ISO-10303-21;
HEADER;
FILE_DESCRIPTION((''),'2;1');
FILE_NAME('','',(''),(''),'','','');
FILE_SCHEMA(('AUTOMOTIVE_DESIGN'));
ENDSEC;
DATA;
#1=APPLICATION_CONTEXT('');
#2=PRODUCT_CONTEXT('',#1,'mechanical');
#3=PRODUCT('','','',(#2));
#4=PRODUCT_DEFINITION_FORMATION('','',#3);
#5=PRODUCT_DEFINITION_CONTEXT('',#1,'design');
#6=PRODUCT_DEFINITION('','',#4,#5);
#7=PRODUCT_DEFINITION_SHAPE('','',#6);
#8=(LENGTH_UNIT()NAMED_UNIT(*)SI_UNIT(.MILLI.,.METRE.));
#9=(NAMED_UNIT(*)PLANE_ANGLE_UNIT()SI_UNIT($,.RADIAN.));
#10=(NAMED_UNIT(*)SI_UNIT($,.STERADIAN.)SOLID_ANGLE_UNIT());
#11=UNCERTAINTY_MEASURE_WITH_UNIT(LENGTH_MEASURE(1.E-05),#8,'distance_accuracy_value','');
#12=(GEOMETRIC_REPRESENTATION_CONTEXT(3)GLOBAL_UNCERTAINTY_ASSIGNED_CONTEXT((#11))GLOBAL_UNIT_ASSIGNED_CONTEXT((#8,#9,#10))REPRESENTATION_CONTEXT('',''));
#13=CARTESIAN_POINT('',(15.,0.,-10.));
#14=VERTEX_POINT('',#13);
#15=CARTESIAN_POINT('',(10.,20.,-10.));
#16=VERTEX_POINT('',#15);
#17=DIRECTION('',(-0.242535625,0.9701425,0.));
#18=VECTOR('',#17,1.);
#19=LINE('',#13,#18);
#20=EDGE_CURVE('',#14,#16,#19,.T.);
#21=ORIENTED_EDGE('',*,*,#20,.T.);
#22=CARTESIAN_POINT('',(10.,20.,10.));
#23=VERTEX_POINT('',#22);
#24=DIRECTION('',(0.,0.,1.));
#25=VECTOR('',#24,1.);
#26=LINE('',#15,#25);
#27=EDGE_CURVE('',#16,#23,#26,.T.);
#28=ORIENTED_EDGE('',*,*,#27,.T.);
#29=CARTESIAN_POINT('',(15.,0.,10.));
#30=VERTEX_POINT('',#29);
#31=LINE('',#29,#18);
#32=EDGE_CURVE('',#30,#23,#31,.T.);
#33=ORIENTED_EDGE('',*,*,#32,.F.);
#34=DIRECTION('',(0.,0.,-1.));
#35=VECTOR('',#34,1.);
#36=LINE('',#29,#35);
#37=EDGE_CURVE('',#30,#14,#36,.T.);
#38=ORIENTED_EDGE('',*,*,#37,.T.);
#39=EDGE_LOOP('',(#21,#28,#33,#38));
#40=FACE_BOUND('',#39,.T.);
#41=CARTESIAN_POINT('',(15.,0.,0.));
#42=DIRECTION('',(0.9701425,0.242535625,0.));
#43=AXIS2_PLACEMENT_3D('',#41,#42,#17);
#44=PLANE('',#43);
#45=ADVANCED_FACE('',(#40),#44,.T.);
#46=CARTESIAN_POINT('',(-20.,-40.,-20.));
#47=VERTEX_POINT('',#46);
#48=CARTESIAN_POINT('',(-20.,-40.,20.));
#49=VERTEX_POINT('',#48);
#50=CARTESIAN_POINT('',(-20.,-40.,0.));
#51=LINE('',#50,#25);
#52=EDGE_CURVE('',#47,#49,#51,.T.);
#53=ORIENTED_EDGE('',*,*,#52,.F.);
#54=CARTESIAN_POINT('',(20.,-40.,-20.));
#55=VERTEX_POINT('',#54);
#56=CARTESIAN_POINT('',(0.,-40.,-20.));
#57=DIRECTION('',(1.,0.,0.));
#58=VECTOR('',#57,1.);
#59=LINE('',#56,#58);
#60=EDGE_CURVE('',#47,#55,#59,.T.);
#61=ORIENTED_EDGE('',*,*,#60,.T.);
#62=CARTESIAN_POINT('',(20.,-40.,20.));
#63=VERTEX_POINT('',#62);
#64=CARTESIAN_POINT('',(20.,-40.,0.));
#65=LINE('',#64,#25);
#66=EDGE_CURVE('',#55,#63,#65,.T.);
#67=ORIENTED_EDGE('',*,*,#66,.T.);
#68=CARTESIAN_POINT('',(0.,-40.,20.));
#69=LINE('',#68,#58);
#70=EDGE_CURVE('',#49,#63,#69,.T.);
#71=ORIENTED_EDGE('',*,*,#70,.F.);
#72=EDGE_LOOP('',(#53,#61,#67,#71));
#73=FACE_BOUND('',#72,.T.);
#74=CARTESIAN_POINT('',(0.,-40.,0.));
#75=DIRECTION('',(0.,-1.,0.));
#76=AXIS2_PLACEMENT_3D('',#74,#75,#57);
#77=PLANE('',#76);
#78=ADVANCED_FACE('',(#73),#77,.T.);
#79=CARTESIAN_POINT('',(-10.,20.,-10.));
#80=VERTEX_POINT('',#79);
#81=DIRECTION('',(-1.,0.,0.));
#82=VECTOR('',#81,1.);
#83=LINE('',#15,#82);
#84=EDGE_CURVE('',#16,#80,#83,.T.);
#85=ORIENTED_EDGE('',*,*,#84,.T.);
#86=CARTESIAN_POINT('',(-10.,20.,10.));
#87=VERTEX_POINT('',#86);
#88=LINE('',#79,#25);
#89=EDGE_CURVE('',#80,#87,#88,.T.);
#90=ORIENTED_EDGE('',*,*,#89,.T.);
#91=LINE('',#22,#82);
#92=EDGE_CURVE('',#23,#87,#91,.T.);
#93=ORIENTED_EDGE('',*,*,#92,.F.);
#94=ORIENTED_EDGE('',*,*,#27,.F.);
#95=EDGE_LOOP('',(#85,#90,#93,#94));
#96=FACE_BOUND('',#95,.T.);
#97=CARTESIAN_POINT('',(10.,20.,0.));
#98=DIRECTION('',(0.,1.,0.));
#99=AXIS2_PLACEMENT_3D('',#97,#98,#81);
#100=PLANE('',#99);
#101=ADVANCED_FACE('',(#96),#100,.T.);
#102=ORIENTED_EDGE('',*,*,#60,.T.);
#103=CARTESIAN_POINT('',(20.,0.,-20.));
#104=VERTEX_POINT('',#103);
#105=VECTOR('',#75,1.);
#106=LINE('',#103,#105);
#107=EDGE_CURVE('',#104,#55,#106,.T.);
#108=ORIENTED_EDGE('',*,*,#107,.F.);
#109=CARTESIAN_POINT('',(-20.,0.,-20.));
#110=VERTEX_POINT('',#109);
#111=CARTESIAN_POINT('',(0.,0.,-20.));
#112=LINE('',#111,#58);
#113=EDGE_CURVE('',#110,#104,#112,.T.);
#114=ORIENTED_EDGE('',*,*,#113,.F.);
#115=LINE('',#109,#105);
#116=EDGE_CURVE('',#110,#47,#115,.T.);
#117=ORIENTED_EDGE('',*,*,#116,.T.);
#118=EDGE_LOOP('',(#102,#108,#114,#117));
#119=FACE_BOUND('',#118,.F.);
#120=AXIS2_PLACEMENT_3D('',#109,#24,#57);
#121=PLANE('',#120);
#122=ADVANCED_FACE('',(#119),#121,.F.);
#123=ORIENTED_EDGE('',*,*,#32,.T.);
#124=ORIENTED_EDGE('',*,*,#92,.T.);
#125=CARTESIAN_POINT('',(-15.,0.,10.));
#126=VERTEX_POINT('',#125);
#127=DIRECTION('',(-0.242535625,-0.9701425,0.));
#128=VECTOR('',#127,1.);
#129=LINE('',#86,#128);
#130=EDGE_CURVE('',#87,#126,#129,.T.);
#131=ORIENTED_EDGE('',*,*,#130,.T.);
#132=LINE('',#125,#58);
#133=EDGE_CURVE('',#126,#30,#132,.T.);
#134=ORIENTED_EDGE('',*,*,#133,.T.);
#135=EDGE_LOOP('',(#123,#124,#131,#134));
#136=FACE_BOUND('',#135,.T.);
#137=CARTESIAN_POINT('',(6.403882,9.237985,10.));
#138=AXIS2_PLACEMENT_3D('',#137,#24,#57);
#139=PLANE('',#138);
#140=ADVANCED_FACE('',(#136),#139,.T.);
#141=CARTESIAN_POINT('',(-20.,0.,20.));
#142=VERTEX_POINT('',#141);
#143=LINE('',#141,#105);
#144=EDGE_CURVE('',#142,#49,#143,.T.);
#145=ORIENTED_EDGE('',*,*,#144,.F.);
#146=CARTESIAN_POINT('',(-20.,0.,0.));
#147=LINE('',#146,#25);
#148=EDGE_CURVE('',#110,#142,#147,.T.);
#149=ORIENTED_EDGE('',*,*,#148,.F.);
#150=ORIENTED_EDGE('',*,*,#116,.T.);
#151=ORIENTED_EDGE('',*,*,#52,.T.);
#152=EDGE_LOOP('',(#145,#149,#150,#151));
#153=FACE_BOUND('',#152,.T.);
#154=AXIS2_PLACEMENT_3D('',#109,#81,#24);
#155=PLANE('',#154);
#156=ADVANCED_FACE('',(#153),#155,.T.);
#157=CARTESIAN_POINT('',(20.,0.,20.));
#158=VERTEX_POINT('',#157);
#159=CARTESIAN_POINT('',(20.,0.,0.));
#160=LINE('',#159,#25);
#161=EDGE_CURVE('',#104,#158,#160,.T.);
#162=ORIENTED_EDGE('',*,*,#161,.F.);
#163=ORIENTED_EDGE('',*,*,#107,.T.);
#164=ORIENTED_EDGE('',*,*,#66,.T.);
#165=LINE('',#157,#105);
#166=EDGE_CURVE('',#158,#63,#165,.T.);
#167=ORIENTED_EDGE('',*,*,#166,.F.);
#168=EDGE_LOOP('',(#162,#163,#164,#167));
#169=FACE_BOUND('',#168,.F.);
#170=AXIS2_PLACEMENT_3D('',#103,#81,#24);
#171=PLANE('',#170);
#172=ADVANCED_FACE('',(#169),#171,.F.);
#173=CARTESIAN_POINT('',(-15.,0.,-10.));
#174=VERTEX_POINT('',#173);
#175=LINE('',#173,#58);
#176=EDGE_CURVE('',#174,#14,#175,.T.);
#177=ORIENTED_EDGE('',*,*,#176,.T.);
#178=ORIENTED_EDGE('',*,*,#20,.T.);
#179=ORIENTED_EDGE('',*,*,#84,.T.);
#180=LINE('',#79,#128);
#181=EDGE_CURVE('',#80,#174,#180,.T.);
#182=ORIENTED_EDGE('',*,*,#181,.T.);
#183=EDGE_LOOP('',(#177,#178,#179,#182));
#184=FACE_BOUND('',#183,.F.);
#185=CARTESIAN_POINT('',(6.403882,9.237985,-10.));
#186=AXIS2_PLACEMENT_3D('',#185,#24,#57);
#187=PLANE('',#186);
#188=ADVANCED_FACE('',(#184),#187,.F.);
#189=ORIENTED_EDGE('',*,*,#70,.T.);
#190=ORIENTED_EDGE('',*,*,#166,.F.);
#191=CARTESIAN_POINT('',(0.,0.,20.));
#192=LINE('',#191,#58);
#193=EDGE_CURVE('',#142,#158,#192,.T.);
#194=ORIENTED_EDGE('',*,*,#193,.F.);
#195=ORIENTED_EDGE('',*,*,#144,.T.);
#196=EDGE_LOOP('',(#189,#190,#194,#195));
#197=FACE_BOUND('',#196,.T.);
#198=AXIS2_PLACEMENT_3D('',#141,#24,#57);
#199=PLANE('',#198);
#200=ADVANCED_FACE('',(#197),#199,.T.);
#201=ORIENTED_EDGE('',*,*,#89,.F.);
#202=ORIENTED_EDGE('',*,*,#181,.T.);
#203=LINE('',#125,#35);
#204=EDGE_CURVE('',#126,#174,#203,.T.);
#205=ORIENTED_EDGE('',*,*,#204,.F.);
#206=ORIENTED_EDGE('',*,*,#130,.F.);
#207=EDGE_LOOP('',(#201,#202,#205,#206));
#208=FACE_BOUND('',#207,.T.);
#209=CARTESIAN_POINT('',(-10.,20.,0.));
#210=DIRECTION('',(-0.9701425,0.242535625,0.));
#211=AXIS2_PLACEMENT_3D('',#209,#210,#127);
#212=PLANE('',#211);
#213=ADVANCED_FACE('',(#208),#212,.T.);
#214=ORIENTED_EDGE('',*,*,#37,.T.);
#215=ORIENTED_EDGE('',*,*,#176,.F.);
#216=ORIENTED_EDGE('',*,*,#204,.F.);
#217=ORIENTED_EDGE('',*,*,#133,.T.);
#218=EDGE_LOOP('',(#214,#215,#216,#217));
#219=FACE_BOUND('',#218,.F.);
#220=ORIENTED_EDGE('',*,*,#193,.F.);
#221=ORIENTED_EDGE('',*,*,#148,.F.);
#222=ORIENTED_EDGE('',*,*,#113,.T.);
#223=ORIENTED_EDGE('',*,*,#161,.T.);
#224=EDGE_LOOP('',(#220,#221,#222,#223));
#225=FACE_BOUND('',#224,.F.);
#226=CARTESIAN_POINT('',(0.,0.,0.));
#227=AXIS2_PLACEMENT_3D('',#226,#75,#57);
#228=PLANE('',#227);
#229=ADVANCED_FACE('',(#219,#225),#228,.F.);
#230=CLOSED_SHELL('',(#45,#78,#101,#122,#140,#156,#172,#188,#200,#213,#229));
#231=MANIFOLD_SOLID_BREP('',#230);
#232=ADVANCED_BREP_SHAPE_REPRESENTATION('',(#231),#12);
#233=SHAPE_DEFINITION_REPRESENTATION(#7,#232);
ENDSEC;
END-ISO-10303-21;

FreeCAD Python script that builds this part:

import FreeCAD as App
import Part
import Sketcher

doc = App.newDocument("Part")
params = doc.addObject("Spreadsheet::Sheet", "Params")
for row, (alias, value) in enumerate([
    ("sketch1_width", "40 mm"),
    ("pad1_length", "40 mm"),
    ("sketch2_width", "20 mm"),
    ("sketch2_width2", "30 mm"),
    ("pad2_length", "20 mm"),
], start=1):
    params.set(f"A{row}", alias)
    params.set(f"B{row}", "=" + value)
    params.setAlias(f"B{row}", alias)

body = doc.addObject("PartDesign::Body", "Body")

sketch1 = body.newObject("Sketcher::SketchObject", "Sketch")
sketch1.AttachmentSupport = (doc.getObject("XZ_Plane"), [""])
sketch1.MapMode = "FlatFace"
sketch1.addGeometry(Part.LineSegment(App.Vector(-20, 20, 0), App.Vector(-20, -20, 0)), False)
sketch1.addGeometry(Part.LineSegment(App.Vector(-20, -20, 0), App.Vector(20, -20, 0)), False)
sketch1.addGeometry(Part.LineSegment(App.Vector(20, -20, 0), App.Vector(20, 20, 0)), False)
sketch1.addGeometry(Part.LineSegment(App.Vector(20, 20, 0), App.Vector(-20, 20, 0)), False)
sketch1.addConstraint(Sketcher.Constraint("Coincident", 0, 2, 1, 1))
sketch1.addConstraint(Sketcher.Constraint("Coincident", 1, 2, 2, 1))
sketch1.addConstraint(Sketcher.Constraint("Coincident", 2, 2, 3, 1))
sketch1.addConstraint(Sketcher.Constraint("Coincident", 3, 2, 0, 1))
sketch1.addConstraint(Sketcher.Constraint("Vertical", 0))
sketch1.addConstraint(Sketcher.Constraint("Horizontal", 1))
sketch1.addConstraint(Sketcher.Constraint("Vertical", 2))
sketch1.addConstraint(Sketcher.Constraint("Horizontal", 3))
sketch1.addConstraint(Sketcher.Constraint("Symmetric", 0, 2, 2, 2, -1, 1))
sketch1.addConstraint(Sketcher.Constraint("Equal", 3, 0))
sketch1.addConstraint(Sketcher.Constraint("DistanceX", 1, 1, 1, 2, 40.0))
sketch1.setExpression("Constraints[10]", "Params.sketch1_width")
pad1 = body.newObject("PartDesign::Pad", "Pad")
pad1.Profile = sketch1
pad1.setExpression("Length", "Params.pad1_length")

sketch2 = body.newObject("Sketcher::SketchObject", "Sketch001")
sketch2.AttachmentSupport = (doc.getObject("XY_Plane"), [""])
sketch2.MapMode = "FlatFace"
sketch2.addGeometry(Part.LineSegment(App.Vector(15, 0, 0), App.Vector(10, 20, 0)), False)
sketch2.addGeometry(Part.LineSegment(App.Vector(10, 20, 0), App.Vector(-10, 20, 0)), False)
sketch2.addGeometry(Part.LineSegment(App.Vector(-10, 20, 0), App.Vector(-15, 0, 0)), False)
sketch2.addGeometry(Part.LineSegment(App.Vector(-15, 0, 0), App.Vector(15, 0, 0)), False)
sketch2.addConstraint(Sketcher.Constraint("Coincident", 0, 2, 1, 1))
sketch2.addConstraint(Sketcher.Constraint("Coincident", 1, 2, 2, 1))
sketch2.addConstraint(Sketcher.Constraint("Coincident", 2, 2, 3, 1))
sketch2.addConstraint(Sketcher.Constraint("Coincident", 3, 2, 0, 1))
sketch2.addConstraint(Sketcher.Constraint("Horizontal", 1))
sketch2.addConstraint(Sketcher.Constraint("Horizontal", 3))
sketch2.addConstraint(Sketcher.Constraint("Symmetric", 2, 2, 3, 2, -1, 1))
sketch2.addConstraint(Sketcher.Constraint("Equal", 0, 2))
sketch2.addConstraint(Sketcher.Constraint("DistanceX", 1, 2, 1, 1, 20.0))
sketch2.addConstraint(Sketcher.Constraint("DistanceX", 3, 1, 3, 2, 30.0))
sketch2.addConstraint(Sketcher.Constraint("DistanceY", -1, 1, 0, 2, 20.0))
sketch2.setExpression("Constraints[8]", "Params.sketch2_width")
sketch2.setExpression("Constraints[9]", "Params.sketch2_width2")
pad2 = body.newObject("PartDesign::Pad", "Pad001")
pad2.Profile = sketch2
pad2.setExpression("Length", "Params.pad2_length")
pad2.Midplane = True

doc.recompute()
